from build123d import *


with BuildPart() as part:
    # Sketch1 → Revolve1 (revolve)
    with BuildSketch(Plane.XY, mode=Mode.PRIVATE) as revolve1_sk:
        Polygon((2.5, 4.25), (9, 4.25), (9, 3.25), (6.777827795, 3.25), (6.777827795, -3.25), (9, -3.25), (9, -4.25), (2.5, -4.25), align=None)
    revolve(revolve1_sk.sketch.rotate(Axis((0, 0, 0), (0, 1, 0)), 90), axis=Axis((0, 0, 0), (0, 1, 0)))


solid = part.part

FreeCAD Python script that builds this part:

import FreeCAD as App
import Part
import Sketcher
from FreeCAD import Vector

doc = App.newDocument("Part")
body = doc.addObject("PartDesign::Body", "Body")

# Sketch on XY plane
sketch1 = body.newObject("Sketcher::SketchObject", "Sketch")
sketch1.AttachmentSupport = (doc.getObject("XY_Plane"), [""])
sketch1.MapMode = "FlatFace"
sketch1.addGeometry(Part.LineSegment(Vector(9, 4.2, 0), Vector(2.5, 4.2, 0)), False)
sketch1.addGeometry(Part.LineSegment(Vector(2.5, 4.2, 0), Vector(2.5, -4.2, 0)), False)
sketch1.addGeometry(Part.LineSegment(Vector(2.5, -4.2, 0), Vector(9, -4.2, 0)), False)
sketch1.addGeometry(Part.LineSegment(Vector(9, -4.2, 0), Vector(9, -3.2, 0)), False)
sketch1.addGeometry(Part.LineSegment(Vector(9, -3.2, 0), Vector(6.8, -3.2, 0)), False)
sketch1.addGeometry(Part.LineSegment(Vector(6.8, -3.2, 0), Vector(6.8, 3.2, 0)), False)
sketch1.addGeometry(Part.LineSegment(Vector(6.8, 3.2, 0), Vector(9, 3.2, 0)), False)
sketch1.addGeometry(Part.LineSegment(Vector(9, 3.2, 0), Vector(9, 4.2, 0)), False)
sketch1.addConstraint(Sketcher.Constraint("Coincident", 0, 2, 1, 1))
sketch1.addConstraint(Sketcher.Constraint("Coincident", 1, 2, 2, 1))
sketch1.addConstraint(Sketcher.Constraint("Coincident", 2, 2, 3, 1))
sketch1.addConstraint(Sketcher.Constraint("Coincident", 3, 2, 4, 1))
sketch1.addConstraint(Sketcher.Constraint("Coincident", 4, 2, 5, 1))
sketch1.addConstraint(Sketcher.Constraint("Coincident", 5, 2, 6, 1))
sketch1.addConstraint(Sketcher.Constraint("Coincident", 6, 2, 7, 1))
sketch1.addConstraint(Sketcher.Constraint("Coincident", 7, 2, 0, 1))
sketch1.addConstraint(Sketcher.Constraint("Horizontal", 0))
sketch1.addConstraint(Sketcher.Constraint("Vertical", 1))
sketch1.addConstraint(Sketcher.Constraint("Horizontal", 2))
sketch1.addConstraint(Sketcher.Constraint("Vertical", 3))
sketch1.addConstraint(Sketcher.Constraint("Horizontal", 4))
sketch1.addConstraint(Sketcher.Constraint("Vertical", 5))
sketch1.addConstraint(Sketcher.Constraint("Horizontal", 6))
sketch1.addConstraint(Sketcher.Constraint("Vertical", 7))
sketch1.addConstraint(Sketcher.Constraint("Symmetric", 3, 2, 6, 2, -1))
sketch1.addConstraint(Sketcher.Constraint("Equal", 2, 5))
sketch1.addConstraint(Sketcher.Constraint("Equal", 3, 7))
sketch1.addConstraint(Sketcher.Constraint("DistanceY", 3, 1, 3, 2, 1.0))
sketch1.addConstraint(Sketcher.Constraint("DistanceX", 0, 2, 0, 1, 6.5))
sketch1.addConstraint(Sketcher.Constraint("DistanceX", -1, 1, 2, 2, 9.0))
sketch1.addConstraint(Sketcher.Constraint("DistanceX", 4, 2, 4, 1, 2.222172))
revolution = body.newObject("PartDesign::Revolution", "Revolution")
revolution.Profile = sketch1
revolution.ReferenceAxis = (sketch1, ["V_Axis"])
revolution.Angle = 360

doc.recompute()
